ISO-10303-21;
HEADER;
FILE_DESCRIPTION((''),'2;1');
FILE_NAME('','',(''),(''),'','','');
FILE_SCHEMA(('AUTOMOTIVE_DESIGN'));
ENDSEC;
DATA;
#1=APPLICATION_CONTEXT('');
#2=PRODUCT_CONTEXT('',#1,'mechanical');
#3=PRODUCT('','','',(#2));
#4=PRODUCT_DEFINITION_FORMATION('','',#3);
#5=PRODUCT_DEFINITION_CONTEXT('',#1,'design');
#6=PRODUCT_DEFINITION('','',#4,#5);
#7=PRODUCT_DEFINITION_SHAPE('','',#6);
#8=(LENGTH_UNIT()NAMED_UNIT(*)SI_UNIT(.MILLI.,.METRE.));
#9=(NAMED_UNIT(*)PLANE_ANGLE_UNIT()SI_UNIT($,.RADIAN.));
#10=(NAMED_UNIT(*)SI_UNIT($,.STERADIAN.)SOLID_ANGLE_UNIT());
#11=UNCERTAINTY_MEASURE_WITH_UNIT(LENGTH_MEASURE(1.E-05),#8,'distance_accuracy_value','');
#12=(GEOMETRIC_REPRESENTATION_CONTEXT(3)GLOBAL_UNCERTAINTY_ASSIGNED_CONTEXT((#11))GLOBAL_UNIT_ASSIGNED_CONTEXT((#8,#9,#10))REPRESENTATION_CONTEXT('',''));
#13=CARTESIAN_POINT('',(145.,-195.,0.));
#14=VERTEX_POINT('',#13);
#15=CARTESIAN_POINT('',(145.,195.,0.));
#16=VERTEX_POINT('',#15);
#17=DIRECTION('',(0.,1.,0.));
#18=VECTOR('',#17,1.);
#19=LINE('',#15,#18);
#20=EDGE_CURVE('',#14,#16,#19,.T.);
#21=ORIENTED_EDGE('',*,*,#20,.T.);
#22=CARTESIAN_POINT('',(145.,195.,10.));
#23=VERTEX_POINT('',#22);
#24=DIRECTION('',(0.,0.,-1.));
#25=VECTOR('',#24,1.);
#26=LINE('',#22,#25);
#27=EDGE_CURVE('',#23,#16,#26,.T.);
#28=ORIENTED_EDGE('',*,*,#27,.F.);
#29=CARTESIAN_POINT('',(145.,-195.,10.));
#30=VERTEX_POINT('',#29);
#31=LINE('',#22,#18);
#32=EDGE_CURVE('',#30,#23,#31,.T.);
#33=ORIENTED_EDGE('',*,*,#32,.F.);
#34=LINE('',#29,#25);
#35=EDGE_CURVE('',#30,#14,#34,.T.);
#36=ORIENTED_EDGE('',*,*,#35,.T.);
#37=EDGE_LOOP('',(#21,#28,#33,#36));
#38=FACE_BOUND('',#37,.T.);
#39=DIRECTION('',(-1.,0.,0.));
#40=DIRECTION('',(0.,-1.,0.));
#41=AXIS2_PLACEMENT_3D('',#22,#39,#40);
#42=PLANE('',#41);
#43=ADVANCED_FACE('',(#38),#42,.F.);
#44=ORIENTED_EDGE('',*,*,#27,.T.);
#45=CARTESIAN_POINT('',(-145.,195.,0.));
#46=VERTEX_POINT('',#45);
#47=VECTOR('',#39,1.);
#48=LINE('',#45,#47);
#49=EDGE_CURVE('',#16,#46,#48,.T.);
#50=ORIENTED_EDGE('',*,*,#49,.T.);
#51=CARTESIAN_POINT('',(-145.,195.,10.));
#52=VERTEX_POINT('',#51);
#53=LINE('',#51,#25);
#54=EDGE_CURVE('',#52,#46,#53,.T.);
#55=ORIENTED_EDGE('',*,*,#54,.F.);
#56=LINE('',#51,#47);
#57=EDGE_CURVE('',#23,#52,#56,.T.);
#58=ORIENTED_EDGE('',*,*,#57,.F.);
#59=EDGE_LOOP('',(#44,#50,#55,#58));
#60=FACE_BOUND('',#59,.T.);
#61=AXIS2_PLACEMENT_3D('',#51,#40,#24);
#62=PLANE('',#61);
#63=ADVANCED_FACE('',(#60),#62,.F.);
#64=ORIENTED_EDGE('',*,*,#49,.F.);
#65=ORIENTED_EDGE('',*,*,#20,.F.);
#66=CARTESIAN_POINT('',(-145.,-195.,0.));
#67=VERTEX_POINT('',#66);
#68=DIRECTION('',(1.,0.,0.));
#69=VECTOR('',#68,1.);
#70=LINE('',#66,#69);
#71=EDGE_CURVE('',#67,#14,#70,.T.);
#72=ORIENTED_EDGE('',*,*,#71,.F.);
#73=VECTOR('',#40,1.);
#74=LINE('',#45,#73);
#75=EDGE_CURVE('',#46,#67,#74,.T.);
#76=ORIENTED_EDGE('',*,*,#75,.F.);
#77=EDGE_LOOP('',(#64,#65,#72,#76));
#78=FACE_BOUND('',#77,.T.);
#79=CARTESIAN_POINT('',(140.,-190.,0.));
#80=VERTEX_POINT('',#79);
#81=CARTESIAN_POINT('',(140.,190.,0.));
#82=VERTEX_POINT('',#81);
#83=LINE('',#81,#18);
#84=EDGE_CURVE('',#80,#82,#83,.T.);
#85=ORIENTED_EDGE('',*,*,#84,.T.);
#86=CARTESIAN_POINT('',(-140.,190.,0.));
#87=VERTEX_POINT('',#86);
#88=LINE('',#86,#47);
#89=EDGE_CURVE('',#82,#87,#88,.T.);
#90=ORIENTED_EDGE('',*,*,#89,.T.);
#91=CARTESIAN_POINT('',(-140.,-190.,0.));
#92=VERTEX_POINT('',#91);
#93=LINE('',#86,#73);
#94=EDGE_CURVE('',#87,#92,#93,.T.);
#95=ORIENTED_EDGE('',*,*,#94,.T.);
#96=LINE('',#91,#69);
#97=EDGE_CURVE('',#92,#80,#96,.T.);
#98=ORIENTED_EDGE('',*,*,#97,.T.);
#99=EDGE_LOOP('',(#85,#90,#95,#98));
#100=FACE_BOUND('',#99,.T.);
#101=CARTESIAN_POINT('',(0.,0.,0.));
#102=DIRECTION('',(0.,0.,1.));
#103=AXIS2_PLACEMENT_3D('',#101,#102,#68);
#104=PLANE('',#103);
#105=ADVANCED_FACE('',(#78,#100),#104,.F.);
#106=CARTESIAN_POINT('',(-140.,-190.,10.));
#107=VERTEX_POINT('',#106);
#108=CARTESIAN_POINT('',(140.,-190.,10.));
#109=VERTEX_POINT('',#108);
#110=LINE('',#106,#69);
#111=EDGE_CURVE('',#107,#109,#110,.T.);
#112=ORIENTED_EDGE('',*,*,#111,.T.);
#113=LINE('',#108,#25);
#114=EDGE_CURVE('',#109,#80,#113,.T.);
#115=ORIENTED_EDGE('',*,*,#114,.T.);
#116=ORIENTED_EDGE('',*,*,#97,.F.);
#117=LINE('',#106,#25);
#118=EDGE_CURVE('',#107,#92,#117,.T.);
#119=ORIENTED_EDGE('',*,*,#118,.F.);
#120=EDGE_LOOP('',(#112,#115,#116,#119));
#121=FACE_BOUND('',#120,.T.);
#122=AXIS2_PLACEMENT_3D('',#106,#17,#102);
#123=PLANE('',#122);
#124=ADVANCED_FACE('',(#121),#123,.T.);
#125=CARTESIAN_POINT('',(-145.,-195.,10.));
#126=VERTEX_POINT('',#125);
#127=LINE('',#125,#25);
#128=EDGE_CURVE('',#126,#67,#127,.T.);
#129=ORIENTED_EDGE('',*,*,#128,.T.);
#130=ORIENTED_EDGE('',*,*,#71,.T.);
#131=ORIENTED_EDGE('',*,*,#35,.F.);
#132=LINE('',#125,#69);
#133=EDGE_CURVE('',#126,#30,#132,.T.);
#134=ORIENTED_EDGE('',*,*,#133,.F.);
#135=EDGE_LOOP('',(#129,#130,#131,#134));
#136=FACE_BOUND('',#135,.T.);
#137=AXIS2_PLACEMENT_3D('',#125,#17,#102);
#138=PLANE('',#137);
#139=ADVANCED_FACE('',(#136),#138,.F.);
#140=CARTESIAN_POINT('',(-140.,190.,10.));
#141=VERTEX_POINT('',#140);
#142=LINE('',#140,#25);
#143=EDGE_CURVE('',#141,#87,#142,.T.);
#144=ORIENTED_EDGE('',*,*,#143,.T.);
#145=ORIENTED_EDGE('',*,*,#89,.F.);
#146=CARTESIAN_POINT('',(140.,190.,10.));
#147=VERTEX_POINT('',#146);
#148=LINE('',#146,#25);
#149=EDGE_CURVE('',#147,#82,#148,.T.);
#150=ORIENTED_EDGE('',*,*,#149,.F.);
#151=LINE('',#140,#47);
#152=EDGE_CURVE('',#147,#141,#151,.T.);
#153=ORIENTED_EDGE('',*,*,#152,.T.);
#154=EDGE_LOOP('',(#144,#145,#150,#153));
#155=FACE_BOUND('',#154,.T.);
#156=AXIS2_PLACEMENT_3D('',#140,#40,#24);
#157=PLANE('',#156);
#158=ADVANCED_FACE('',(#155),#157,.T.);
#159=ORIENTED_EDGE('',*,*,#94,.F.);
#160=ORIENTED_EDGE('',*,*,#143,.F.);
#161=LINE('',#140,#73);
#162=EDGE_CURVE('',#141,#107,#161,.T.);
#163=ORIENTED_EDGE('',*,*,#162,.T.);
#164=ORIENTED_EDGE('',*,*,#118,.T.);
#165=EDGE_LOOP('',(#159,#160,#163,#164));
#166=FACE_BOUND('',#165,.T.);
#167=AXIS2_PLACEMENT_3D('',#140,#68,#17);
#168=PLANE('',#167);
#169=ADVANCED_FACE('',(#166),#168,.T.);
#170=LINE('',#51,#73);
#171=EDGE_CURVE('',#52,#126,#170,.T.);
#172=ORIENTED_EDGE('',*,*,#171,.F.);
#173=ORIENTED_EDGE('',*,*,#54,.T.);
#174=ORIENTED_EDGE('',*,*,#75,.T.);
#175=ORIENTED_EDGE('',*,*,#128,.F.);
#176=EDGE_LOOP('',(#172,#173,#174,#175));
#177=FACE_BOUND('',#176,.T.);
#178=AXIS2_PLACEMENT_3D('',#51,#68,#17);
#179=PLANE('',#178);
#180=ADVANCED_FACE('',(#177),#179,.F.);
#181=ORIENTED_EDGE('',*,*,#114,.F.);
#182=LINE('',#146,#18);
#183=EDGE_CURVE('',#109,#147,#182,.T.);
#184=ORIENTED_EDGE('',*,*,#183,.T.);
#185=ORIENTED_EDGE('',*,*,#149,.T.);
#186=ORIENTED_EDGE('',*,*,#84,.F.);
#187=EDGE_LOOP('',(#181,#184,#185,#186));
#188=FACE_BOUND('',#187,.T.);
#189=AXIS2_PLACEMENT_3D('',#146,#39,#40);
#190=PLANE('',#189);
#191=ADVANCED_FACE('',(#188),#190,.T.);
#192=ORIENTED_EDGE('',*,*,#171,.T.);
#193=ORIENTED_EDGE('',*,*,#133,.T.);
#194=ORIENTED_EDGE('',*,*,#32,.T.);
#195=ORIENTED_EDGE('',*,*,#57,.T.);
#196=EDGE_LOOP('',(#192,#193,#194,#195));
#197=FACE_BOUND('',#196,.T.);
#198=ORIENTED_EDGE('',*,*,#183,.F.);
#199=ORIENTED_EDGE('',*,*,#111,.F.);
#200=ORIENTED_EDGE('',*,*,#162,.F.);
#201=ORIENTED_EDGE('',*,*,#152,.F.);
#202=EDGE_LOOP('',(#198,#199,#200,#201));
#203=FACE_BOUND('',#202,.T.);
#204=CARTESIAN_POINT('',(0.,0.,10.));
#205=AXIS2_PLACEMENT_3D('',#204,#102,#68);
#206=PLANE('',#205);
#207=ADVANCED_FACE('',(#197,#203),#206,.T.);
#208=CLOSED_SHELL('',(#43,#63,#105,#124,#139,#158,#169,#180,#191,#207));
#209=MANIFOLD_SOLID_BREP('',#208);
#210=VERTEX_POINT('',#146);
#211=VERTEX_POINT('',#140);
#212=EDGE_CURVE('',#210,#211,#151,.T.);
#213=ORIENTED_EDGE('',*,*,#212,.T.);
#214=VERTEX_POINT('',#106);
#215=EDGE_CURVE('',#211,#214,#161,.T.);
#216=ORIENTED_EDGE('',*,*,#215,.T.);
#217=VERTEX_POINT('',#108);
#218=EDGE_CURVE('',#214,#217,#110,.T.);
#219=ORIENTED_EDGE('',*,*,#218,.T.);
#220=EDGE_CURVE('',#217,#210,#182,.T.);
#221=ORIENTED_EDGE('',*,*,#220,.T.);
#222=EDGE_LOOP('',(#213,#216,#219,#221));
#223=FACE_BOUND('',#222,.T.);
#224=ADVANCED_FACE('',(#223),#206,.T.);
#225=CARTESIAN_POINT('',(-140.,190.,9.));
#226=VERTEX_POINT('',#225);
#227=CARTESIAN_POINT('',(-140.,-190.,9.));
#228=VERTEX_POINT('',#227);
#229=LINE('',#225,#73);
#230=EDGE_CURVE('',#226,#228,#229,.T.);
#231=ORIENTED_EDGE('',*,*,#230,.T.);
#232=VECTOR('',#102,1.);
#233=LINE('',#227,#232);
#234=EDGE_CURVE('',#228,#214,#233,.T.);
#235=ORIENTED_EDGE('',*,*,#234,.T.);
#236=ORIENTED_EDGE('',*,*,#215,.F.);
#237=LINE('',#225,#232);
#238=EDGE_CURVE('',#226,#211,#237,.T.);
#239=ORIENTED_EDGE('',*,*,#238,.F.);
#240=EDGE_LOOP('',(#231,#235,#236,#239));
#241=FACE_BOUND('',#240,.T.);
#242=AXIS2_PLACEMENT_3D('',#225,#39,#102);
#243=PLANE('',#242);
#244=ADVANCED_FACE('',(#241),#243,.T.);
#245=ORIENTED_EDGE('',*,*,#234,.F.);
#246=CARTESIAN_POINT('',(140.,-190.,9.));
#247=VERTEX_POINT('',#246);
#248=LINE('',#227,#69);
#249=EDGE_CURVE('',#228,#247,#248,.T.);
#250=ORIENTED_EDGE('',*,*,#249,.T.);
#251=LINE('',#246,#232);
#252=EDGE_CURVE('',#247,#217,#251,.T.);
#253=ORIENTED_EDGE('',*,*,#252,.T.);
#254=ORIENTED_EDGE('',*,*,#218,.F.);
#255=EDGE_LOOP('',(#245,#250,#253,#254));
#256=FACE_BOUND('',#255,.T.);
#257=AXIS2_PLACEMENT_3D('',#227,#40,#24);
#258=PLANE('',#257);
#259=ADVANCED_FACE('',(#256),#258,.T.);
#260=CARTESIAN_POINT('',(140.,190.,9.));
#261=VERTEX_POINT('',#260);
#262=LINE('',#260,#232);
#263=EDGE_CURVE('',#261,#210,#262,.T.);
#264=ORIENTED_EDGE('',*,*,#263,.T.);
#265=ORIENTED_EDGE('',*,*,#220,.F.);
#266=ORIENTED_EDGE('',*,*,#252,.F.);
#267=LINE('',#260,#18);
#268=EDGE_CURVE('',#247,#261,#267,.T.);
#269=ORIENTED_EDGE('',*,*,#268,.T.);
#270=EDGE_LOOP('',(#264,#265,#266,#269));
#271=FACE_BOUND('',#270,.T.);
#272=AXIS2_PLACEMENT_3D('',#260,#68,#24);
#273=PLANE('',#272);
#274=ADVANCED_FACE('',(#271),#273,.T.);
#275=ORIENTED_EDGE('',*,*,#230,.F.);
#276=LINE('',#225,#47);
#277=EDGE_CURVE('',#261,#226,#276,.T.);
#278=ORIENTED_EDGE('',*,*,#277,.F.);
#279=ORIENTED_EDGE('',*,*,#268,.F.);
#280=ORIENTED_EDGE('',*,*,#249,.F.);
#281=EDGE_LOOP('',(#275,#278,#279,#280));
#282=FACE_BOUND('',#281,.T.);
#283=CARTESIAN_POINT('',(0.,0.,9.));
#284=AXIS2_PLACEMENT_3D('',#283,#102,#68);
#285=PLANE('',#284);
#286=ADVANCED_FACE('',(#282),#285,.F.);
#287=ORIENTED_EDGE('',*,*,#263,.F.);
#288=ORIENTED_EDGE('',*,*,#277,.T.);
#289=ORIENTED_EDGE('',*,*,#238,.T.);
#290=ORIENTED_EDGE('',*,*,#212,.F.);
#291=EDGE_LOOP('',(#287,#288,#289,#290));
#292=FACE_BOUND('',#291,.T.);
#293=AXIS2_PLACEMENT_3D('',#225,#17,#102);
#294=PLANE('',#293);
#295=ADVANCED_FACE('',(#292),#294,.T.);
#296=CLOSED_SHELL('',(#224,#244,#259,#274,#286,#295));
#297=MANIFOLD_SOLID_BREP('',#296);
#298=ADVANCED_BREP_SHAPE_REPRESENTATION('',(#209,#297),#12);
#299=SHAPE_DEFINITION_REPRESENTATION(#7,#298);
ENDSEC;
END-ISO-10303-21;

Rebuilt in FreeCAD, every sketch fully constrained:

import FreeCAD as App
import Part
import Sketcher

doc = App.newDocument("Part")
body = doc.addObject("PartDesign::Body", "Body")

# Sketch on XY plane
sketch1 = doc.addObject("Sketcher::SketchObject", "Sketch")
body.addObject(sketch1)
sketch1.AttachmentSupport = (doc.XY_Plane, [""])
sketch1.MapMode = "FlatFace"
sketch1.addGeometry([
    Part.LineSegment(App.Vector(-145, 195, 0), App.Vector(-145, -195, 0)),  # 0
    Part.LineSegment(App.Vector(-145, -195, 0), App.Vector(145, -195, 0)),  # 1
    Part.LineSegment(App.Vector(145, -195, 0), App.Vector(145, 195, 0)),  # 2
    Part.LineSegment(App.Vector(145, 195, 0), App.Vector(-145, 195, 0)),  # 3
    Part.LineSegment(App.Vector(140, -190, 0), App.Vector(-140, -190, 0)),  # 4
    Part.LineSegment(App.Vector(-140, -190, 0), App.Vector(-140, 190, 0)),  # 5
    Part.LineSegment(App.Vector(-140, 190, 0), App.Vector(140, 190, 0)),  # 6
    Part.LineSegment(App.Vector(140, 190, 0), App.Vector(140, -190, 0)),  # 7
], False)
sketch1.addConstraint([
    Sketcher.Constraint("Coincident", 0, 2, 1, 1),
    Sketcher.Constraint("Coincident", 1, 2, 2, 1),
    Sketcher.Constraint("Coincident", 2, 2, 3, 1),
    Sketcher.Constraint("Coincident", 3, 2, 0, 1),
    Sketcher.Constraint("Coincident", 4, 2, 5, 1),
    Sketcher.Constraint("Coincident", 5, 2, 6, 1),
    Sketcher.Constraint("Coincident", 6, 2, 7, 1),
    Sketcher.Constraint("Coincident", 7, 2, 4, 1),
    Sketcher.Constraint("Vertical", 0),
    Sketcher.Constraint("Horizontal", 1),
    Sketcher.Constraint("Vertical", 2),
    Sketcher.Constraint("Horizontal", 3),
    Sketcher.Constraint("Horizontal", 4),
    Sketcher.Constraint("Vertical", 5),
    Sketcher.Constraint("Horizontal", 6),
    Sketcher.Constraint("Vertical", 7),
    Sketcher.Constraint("Symmetric", 0, 2, 2, 2, -1, 1),
    Sketcher.Constraint("Symmetric", 4, 2, 6, 2, -1, 1),
    Sketcher.Constraint("DistanceX", 1, 1, 1, 2, 290.0),
    Sketcher.Constraint("DistanceX", 4, 2, 4, 1, 280.0),
    Sketcher.Constraint("DistanceY", 0, 2, 0, 1, 390.0),
    Sketcher.Constraint("DistanceY", 5, 1, 5, 2, 380.0),
])
pad1 = doc.addObject("PartDesign::Pad", "Pad")
body.addObject(pad1)
pad1.Profile = sketch1
pad1.Length = 10
body2 = doc.addObject("PartDesign::Body", "Body001")

# Sketch on XY plane
sketch2 = doc.addObject("Sketcher::SketchObject", "Sketch001")
body2.addObject(sketch2)
sketch2.AttachmentSupport = (doc.getObject("XY_Plane001"), [""])
sketch2.MapMode = "FlatFace"
sketch2.AttachmentOffset = App.Placement(App.Vector(0, 0, 10), App.Rotation())
sketch2.addGeometry([
    Part.LineSegment(App.Vector(-140, 190, 0), App.Vector(-140, -190, 0)),
    Part.LineSegment(App.Vector(-140, -190, 0), App.Vector(140, -190, 0)),
    Part.LineSegment(App.Vector(140, -190, 0), App.Vector(140, 190, 0)),
    Part.LineSegment(App.Vector(140, 190, 0), App.Vector(-140, 190, 0)),
], False)
sketch2.addConstraint([
    Sketcher.Constraint("Coincident", 0, 2, 1, 1),
    Sketcher.Constraint("Coincident", 1, 2, 2, 1),
    Sketcher.Constraint("Coincident", 2, 2, 3, 1),
    Sketcher.Constraint("Coincident", 3, 2, 0, 1),
    Sketcher.Constraint("Vertical", 0),
    Sketcher.Constraint("Horizontal", 1),
    Sketcher.Constraint("Vertical", 2),
    Sketcher.Constraint("Horizontal", 3),
    Sketcher.Constraint("Symmetric", 0, 2, 2, 2, -1, 1),
    Sketcher.Constraint("DistanceX", 1, 1, 1, 2, 280.0),
    Sketcher.Constraint("DistanceY", 0, 2, 0, 1, 380.0),
])
pad2 = doc.addObject("PartDesign::Pad", "Pad001")
body2.addObject(pad2)
pad2.Profile = sketch2
pad2.Length = 1
pad2.Reversed = True

doc.recompute()
